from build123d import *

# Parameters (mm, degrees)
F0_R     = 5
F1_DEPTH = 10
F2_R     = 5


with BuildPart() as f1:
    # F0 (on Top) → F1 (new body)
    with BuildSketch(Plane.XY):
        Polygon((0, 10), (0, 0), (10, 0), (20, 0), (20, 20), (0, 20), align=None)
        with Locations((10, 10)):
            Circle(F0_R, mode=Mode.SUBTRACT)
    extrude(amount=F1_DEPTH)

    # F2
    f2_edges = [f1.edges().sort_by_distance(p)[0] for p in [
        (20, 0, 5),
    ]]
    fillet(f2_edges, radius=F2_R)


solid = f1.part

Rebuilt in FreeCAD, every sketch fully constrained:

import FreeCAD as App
import Part
import Sketcher
from FreeCAD import Vector
Q = App.Units.Quantity


def edges_at(feature, points):
    """Names of the edges that pass closest to the given points."""
    edges = feature.Shape.Edges
    near = lambda p: min(range(len(edges)), key=lambda i: edges[i].distToShape(Part.Vertex(*p))[0])
    return sorted({f"Edge{near(p) + 1}" for p in points})


def add_polygon(sketch, points):
    """Adds a closed chain of lines whose ends are joined by coincident constraints."""
    first, n = sketch.GeometryCount, len(points)
    for a, b in zip(points, points[1:] + points[:1]):
        sketch.addGeometry(Part.LineSegment(App.Vector(*a, 0), App.Vector(*b, 0)), False)
    for i in range(n):
        sketch.addConstraint(Sketcher.Constraint("Coincident", first + i, 2, first + (i + 1) % n, 1))

doc = App.newDocument("Part")
params = doc.addObject("Spreadsheet::Sheet", "Params")
for row, (alias, value) in enumerate([
    ("sketch1_diameter", "10 mm"),
    ("sketch1_width", "20 mm"),
    ("pad1_length", "10 mm"),
    ("fillet_radius", "5 mm"),
], start=1):
    params.set(f"A{row}", alias)
    params.set(f"B{row}", "=" + value)
    params.setAlias(f"B{row}", alias)

body = doc.addObject("PartDesign::Body", "Body")

# Sketch on XY plane
sketch1 = doc.addObject("Sketcher::SketchObject", "Sketch")
body.addObject(sketch1)
sketch1.AttachmentSupport = (doc.XY_Plane, [""])
sketch1.MapMode = "FlatFace"
add_polygon(sketch1, [(0, 0), (20, 0), (20, 20), (0, 20)])  # lines 0-3
sketch1.addGeometry(Part.Circle(Vector(10, 10, 0), Vector(0, 0, 1), 5), False)  # 4
sketch1.addConstraint([
    Sketcher.Constraint("Horizontal", 0),
    Sketcher.Constraint("Vertical", 1),
    Sketcher.Constraint("Horizontal", 2),
    Sketcher.Constraint("Vertical", 3),
    Sketcher.Constraint("Coincident", 3, 2, -1, 1),
    Sketcher.Constraint("Equal", 2, 1),
    Sketcher.Constraint("Diameter", 4, Q("10 mm")),
    Sketcher.Constraint("DistanceX", 0, 1, 0, 2, Q("20 mm")),
    Sketcher.Constraint("DistanceX", -1, 1, 4, 3, Q("10 mm")),
    Sketcher.Constraint("DistanceY", -1, 1, 4, 3, Q("10 mm")),
])
sketch1.setExpression("Constraints[10]", "Params.sketch1_diameter")
sketch1.setExpression("Constraints[11]", "Params.sketch1_width")
pad1 = doc.addObject("PartDesign::Pad", "Pad")
body.addObject(pad1)
pad1.Profile = sketch1
pad1.setExpression("Length", "Params.pad1_length")
doc.recompute()

fillet = doc.addObject("PartDesign::Fillet", "Fillet")
body.addObject(fillet)
fillet.Base = (pad1, edges_at(pad1, [(20, 0, 5)]))
fillet.setExpression("Radius", "Params.fillet_radius")

doc.recompute()
